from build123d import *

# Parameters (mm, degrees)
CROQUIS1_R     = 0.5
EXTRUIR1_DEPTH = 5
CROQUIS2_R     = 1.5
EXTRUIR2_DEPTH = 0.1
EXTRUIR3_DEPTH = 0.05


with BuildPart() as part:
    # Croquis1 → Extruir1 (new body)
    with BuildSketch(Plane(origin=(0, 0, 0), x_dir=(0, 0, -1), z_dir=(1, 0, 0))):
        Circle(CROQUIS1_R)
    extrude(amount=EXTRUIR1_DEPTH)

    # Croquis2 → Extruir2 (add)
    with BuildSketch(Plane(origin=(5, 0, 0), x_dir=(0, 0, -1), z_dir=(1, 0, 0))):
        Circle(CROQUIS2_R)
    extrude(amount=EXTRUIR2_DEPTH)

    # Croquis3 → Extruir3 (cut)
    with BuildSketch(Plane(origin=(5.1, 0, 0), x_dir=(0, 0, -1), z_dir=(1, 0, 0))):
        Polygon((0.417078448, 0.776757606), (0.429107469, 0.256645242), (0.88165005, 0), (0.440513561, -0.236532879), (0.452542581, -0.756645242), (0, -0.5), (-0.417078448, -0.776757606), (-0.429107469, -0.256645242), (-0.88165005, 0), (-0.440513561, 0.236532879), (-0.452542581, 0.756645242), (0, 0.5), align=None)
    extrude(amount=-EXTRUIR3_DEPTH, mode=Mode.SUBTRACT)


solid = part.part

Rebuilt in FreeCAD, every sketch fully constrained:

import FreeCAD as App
import Part
import Sketcher

V = App.Vector

doc = App.newDocument("Part")
body = doc.addObject("PartDesign::Body", "Body")

# Sketch on YZ plane
sketch1 = body.newObject("Sketcher::SketchObject", "Sketch")
sketch1.AttachmentSupport = (doc.getObject("YZ_Plane"), [""])
sketch1.MapMode = "FlatFace"
sketch1.addGeometry(Part.Circle(V(0, 0, 0), V(0, 0, 1), 0.5), False)
sketch1.addConstraint(Sketcher.Constraint("Coincident", 0, 3, -1, 1))
sketch1.addConstraint(Sketcher.Constraint("Diameter", 0, 1.0))
pad1 = body.newObject("PartDesign::Pad", "Pad")
pad1.Profile = sketch1
pad1.Length = 5

# Sketch on YZ plane
sketch2 = body.newObject("Sketcher::SketchObject", "Sketch001")
sketch2.AttachmentSupport = (doc.getObject("YZ_Plane"), [""])
sketch2.MapMode = "FlatFace"
sketch2.AttachmentOffset = App.Placement(V(0, 0, 5), App.Rotation())
sketch2.addGeometry(Part.Circle(V(0, 0, 0), V(0, 0, 1), 1.5), False)
sketch2.addConstraint(Sketcher.Constraint("Coincident", 0, 3, -1, 1))
sketch2.addConstraint(Sketcher.Constraint("Diameter", 0, 3.0))
pad2 = body.newObject("PartDesign::Pad", "Pad001")
pad2.Profile = sketch2
pad2.Length = 0.1

# Sketch on YZ plane
sketch3 = body.newObject("Sketcher::SketchObject", "Sketch002")
sketch3.AttachmentSupport = (doc.getObject("YZ_Plane"), [""])
sketch3.MapMode = "FlatFace"
sketch3.AttachmentOffset = App.Placement(V(0, 0, 5.1), App.Rotation())
sketch3.addGeometry(Part.LineSegment(V(0.256645, -0.429107, 0), V(0.776758, -0.417078, 0)), False)
sketch3.addGeometry(Part.LineSegment(V(0.776758, -0.417078, 0), V(0.5, 0, 0)), False)
sketch3.addGeometry(Part.LineSegment(V(0.5, 0, 0), V(0.756645, 0.452543, 0)), False)
sketch3.addGeometry(Part.LineSegment(V(0.756645, 0.452543, 0), V(0.236533, 0.440514, 0)), False)
sketch3.addGeometry(Part.LineSegment(V(0.236533, 0.440514, 0), V(0, 0.88165, 0)), False)
sketch3.addGeometry(Part.LineSegment(V(0, 0.88165, 0), V(-0.256645, 0.429107, 0)), False)
sketch3.addGeometry(Part.LineSegment(V(-0.256645, 0.429107, 0), V(-0.776758, 0.417078, 0)), False)
sketch3.addGeometry(Part.LineSegment(V(-0.776758, 0.417078, 0), V(-0.5, 0, 0)), False)
sketch3.addGeometry(Part.LineSegment(V(-0.5, 0, 0), V(-0.756645, -0.452543, 0)), False)
sketch3.addGeometry(Part.LineSegment(V(-0.756645, -0.452543, 0), V(-0.236533, -0.440514, 0)), False)
sketch3.addGeometry(Part.LineSegment(V(-0.236533, -0.440514, 0), V(0, -0.88165, 0)), False)
sketch3.addGeometry(Part.LineSegment(V(0, -0.88165, 0), V(0.256645, -0.429107, 0)), False)
sketch3.addConstraint(Sketcher.Constraint("Coincident", 0, 2, 1, 1))
sketch3.addConstraint(Sketcher.Constraint("Coincident", 1, 2, 2, 1))
sketch3.addConstraint(Sketcher.Constraint("Coincident", 2, 2, 3, 1))
sketch3.addConstraint(Sketcher.Constraint("Coincident", 3, 2, 4, 1))
sketch3.addConstraint(Sketcher.Constraint("Coincident", 4, 2, 5, 1))
sketch3.addConstraint(Sketcher.Constraint("Coincident", 5, 2, 6, 1))
sketch3.addConstraint(Sketcher.Constraint("Coincident", 6, 2, 7, 1))
sketch3.addConstraint(Sketcher.Constraint("Coincident", 7, 2, 8, 1))
sketch3.addConstraint(Sketcher.Constraint("Coincident", 8, 2, 9, 1))
sketch3.addConstraint(Sketcher.Constraint("Coincident", 9, 2, 10, 1))
sketch3.addConstraint(Sketcher.Constraint("Coincident", 10, 2, 11, 1))
sketch3.addConstraint(Sketcher.Constraint("Coincident", 11, 2, 0, 1))
sketch3.addConstraint(Sketcher.Constraint("Symmetric", 0, 2, 6, 2, -1, 1))
sketch3.addConstraint(Sketcher.Constraint("Symmetric", 1, 2, 7, 2, -1, 1))
sketch3.addConstraint(Sketcher.Constraint("Symmetric", 2, 2, 8, 2, -1, 1))
sketch3.addConstraint(Sketcher.Constraint("Symmetric", 3, 2, 9, 2, -1, 1))
sketch3.addConstraint(Sketcher.Constraint("Symmetric", 4, 2, 10, 2, -1, 1))
sketch3.addConstraint(Sketcher.Constraint("Symmetric", 5, 2, 11, 2, -1, 1))
sketch3.addConstraint(Sketcher.Constraint("PointOnObject", 1, 2, -1))
sketch3.addConstraint(Sketcher.Constraint("PointOnObject", 4, 2, -2))
sketch3.addConstraint(Sketcher.Constraint("Parallel", 0, 3))
sketch3.addConstraint(Sketcher.Constraint("Parallel", 2, 5))
sketch3.addConstraint(Sketcher.Constraint("Equal", 0, 2))
sketch3.addConstraint(Sketcher.Constraint("Equal", 2, 3))
sketch3.addConstraint(Sketcher.Constraint("Equal", 1, 4))
sketch3.addConstraint(Sketcher.Constraint("Equal", 3, 5))
sketch3.addConstraint(Sketcher.Constraint("DistanceX", 7, 2, 1, 2, 1.0))
sketch3.addConstraint(Sketcher.Constraint("Distance", 0, 0.520251))
sketch3.addConstraint(Sketcher.Constraint("Distance", 1, 0.500549))
sketch3.addConstraint(Sketcher.Constraint("DistanceY", 0, 2, -1, 1, 0.417078))
pocket1 = body.newObject("PartDesign::Pocket", "Pocket")
pocket1.Profile = sketch3
pocket1.Length = 0.05

doc.recompute()
